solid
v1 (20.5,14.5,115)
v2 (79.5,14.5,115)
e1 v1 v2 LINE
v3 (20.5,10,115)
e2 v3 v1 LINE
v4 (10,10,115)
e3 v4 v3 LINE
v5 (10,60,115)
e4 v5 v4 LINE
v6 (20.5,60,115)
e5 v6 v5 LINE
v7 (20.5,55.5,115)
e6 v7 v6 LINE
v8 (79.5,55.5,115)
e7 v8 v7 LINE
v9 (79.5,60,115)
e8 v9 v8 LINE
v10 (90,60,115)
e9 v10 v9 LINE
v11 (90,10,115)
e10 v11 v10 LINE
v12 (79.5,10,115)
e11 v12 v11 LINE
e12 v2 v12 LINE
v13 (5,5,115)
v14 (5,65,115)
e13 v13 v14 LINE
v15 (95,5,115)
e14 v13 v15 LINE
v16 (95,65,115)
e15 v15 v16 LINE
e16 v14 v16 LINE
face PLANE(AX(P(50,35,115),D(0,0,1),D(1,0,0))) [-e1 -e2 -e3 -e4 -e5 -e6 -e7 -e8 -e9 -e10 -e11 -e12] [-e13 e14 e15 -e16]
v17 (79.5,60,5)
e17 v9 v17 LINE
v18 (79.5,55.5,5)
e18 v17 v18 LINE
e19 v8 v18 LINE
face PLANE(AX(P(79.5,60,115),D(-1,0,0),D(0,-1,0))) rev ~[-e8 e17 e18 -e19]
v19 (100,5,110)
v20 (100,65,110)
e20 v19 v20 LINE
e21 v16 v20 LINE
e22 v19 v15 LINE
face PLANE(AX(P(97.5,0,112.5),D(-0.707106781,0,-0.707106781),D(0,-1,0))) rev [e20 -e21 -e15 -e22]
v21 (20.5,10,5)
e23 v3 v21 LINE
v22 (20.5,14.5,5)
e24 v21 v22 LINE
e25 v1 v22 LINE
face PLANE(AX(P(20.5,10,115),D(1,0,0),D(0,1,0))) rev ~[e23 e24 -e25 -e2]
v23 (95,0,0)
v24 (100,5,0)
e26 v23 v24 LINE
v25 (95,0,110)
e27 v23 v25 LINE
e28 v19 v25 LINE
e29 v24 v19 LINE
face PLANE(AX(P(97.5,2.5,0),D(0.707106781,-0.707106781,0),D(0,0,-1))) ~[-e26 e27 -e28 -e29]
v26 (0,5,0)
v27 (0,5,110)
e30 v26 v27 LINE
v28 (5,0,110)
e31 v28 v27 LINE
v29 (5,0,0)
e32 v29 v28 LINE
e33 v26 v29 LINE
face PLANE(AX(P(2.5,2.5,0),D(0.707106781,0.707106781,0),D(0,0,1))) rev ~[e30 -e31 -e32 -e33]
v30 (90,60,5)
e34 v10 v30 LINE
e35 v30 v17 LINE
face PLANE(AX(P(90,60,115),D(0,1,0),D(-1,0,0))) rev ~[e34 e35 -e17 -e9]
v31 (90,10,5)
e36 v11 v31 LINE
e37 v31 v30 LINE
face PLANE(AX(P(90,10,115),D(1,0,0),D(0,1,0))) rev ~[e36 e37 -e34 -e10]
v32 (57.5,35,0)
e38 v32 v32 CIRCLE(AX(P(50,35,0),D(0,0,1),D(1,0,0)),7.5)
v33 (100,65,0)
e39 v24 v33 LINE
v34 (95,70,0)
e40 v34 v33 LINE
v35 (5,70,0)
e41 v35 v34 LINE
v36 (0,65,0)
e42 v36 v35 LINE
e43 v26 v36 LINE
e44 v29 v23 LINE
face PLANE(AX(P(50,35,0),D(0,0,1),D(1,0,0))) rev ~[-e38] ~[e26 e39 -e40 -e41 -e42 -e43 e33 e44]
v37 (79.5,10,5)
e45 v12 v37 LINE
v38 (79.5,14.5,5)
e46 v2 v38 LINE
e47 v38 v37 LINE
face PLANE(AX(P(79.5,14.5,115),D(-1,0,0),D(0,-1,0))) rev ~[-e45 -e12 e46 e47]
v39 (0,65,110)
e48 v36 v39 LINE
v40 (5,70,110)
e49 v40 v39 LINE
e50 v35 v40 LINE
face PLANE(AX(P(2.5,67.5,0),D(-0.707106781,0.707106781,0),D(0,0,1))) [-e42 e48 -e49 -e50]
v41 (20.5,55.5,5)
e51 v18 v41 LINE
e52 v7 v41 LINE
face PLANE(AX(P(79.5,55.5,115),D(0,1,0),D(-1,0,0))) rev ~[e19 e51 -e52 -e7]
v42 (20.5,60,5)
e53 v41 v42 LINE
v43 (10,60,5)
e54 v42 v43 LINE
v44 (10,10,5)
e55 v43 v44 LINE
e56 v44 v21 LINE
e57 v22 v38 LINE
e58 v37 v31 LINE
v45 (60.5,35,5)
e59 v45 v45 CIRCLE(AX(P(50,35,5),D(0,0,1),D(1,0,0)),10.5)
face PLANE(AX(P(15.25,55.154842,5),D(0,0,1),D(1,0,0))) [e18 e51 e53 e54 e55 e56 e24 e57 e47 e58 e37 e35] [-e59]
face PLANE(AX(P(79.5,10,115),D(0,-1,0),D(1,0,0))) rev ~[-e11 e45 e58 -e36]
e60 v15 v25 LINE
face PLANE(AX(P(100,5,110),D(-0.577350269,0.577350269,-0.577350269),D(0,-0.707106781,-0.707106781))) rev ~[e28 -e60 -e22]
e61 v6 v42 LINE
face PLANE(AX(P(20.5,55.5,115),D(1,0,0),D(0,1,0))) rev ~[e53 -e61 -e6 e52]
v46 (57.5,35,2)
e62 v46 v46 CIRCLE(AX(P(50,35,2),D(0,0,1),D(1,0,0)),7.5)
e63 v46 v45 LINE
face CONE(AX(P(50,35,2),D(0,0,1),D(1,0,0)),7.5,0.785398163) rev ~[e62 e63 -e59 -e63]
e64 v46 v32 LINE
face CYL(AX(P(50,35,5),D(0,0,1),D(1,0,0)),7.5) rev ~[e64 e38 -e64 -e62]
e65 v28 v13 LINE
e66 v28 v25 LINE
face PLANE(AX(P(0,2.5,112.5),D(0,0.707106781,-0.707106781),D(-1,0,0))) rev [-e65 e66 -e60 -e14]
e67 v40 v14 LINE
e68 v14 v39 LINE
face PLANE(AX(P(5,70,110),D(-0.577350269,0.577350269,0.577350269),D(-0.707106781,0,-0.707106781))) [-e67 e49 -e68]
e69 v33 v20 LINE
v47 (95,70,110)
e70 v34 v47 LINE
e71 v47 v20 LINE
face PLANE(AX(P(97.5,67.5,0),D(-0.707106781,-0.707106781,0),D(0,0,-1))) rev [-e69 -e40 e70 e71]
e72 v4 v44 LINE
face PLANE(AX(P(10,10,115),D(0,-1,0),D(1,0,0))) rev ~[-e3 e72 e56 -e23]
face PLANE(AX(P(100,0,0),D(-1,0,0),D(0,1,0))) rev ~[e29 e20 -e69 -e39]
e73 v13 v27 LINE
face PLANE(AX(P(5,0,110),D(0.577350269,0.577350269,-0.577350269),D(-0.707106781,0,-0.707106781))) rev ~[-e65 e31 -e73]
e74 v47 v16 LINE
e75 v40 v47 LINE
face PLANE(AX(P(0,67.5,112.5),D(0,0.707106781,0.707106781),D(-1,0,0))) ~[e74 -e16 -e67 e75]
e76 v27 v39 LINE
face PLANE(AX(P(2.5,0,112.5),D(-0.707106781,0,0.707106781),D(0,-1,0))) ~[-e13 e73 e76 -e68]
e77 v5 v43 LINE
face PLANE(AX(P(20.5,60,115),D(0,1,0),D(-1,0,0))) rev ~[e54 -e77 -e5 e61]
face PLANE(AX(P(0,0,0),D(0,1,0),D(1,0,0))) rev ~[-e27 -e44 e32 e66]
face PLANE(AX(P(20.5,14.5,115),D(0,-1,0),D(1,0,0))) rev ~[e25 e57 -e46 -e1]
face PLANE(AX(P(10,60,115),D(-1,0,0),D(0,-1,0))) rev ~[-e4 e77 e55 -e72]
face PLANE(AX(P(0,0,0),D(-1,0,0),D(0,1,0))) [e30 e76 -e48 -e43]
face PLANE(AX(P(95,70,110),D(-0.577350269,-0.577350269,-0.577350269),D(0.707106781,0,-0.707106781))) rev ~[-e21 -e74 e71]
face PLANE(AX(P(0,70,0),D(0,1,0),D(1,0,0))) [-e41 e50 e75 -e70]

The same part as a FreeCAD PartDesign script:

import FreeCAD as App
import Part
import Sketcher

V = App.Vector


def edges_at(feature, points):
    """Names of the edges that pass closest to the given points."""
    edges = feature.Shape.Edges
    near = lambda p: min(range(len(edges)), key=lambda i: edges[i].distToShape(Part.Vertex(*p))[0])
    return sorted({f"Edge{near(p) + 1}" for p in points})


def add_polygon(sketch, points):
    """Adds a closed chain of lines whose ends are joined by coincident constraints."""
    first, n = sketch.GeometryCount, len(points)
    for a, b in zip(points, points[1:] + points[:1]):
        sketch.addGeometry(Part.LineSegment(App.Vector(*a, 0), App.Vector(*b, 0)), False)
    for i in range(n):
        sketch.addConstraint(Sketcher.Constraint("Coincident", first + i, 2, first + (i + 1) % n, 1))

doc = App.newDocument("Part")
body = doc.addObject("PartDesign::Body", "Body")

sketch1 = body.newObject("Sketcher::SketchObject", "Sketch")
sketch1.AttachmentSupport = (doc.getObject("XY_Plane"), [""])
sketch1.MapMode = "FlatFace"
add_polygon(sketch1, [(0, 70), (0, 0), (100, 0), (100, 70)])
sketch1.addConstraint([
    Sketcher.Constraint("Vertical", 0),
    Sketcher.Constraint("Horizontal", 1),
    Sketcher.Constraint("Vertical", 2),
    Sketcher.Constraint("Horizontal", 3),
    Sketcher.Constraint("Coincident", 0, 2, -1, 1),
    Sketcher.Constraint("DistanceX", 1, 1, 1, 2, 100.0),
    Sketcher.Constraint("DistanceY", 0, 2, 0, 1, 70.0),
])
pad1 = body.newObject("PartDesign::Pad", "Pad")
pad1.Profile = sketch1
pad1.Length = 115

sketch2 = body.newObject("Sketcher::SketchObject", "Sketch001")
sketch2.AttachmentSupport = (doc.getObject("XY_Plane"), [""])
sketch2.MapMode = "FlatFace"
sketch2.AttachmentOffset = App.Placement(V(0, 0, 115), App.Rotation())
add_polygon(sketch2, [(20.5, 60), (10, 60), (10, 10), (20.5, 10), (20.5, 14.5), (79.5, 14.5), (79.5, 10), (90, 10), (90, 60), (79.5, 60), (79.5, 55.5), (20.5, 55.5)])
sketch2.addConstraint([
    Sketcher.Constraint("Horizontal", 0),
    Sketcher.Constraint("Vertical", 1),
    Sketcher.Constraint("Horizontal", 2),
    Sketcher.Constraint("Vertical", 3),
    Sketcher.Constraint("Horizontal", 4),
    Sketcher.Constraint("Vertical", 5),
    Sketcher.Constraint("Horizontal", 6),
    Sketcher.Constraint("Vertical", 7),
    Sketcher.Constraint("Horizontal", 8),
    Sketcher.Constraint("Vertical", 9),
    Sketcher.Constraint("Horizontal", 10),
    Sketcher.Constraint("Vertical", 11),
    Sketcher.Constraint("Horizontal", 2, 2, 5, 2),
    Sketcher.Constraint("Horizontal", 0, 2, 7, 2),
    Sketcher.Constraint("Vertical", 5, 2, 8, 2),
    Sketcher.Constraint("Vertical", 3, 2, 10, 2),
    Sketcher.Constraint("Equal", 2, 6),
    Sketcher.Constraint("Equal", 5, 9),
    Sketcher.Constraint("DistanceX", 4, 1, 4, 2, 59.0),
    Sketcher.Constraint("DistanceY", 1, 2, 1, 1, 50.0),
    Sketcher.Constraint("DistanceX", 0, 2, 0, 1, 10.5),
    Sketcher.Constraint("DistanceY", 3, 1, 3, 2, 4.5),
    Sketcher.Constraint("DistanceX", -1, 1, 0, 2, 10.0),
    Sketcher.Constraint("DistanceY", -1, 1, 0, 2, 60.0),
])
pocket1 = body.newObject("PartDesign::Pocket", "Pocket")
pocket1.Profile = sketch2
pocket1.Length = 110

sketch3 = body.newObject("Sketcher::SketchObject", "Sketch002")
sketch3.AttachmentSupport = (doc.getObject("XY_Plane"), [""])
sketch3.MapMode = "FlatFace"
sketch3.AttachmentOffset = App.Placement(V(0, 0, 5), App.Rotation())
sketch3.addGeometry(Part.Circle(V(50, 35, 0), V(0, 0, 1), 8), False)
sketch3.addConstraint([
    Sketcher.Constraint("Diameter", 0, 15.0),
    Sketcher.Constraint("DistanceX", -1, 1, 0, 3, 50.0),
    Sketcher.Constraint("DistanceY", -1, 1, 0, 3, 35.0),
])
pocket2 = body.newObject("PartDesign::Pocket", "Pocket001")
pocket2.Profile = sketch3
pocket2.Length = 25
doc.recompute()

chamfer = body.newObject("PartDesign::Chamfer", "Chamfer")
chamfer.Base = (pocket2, edges_at(pocket2, [(42.5, 35, 5)]))
chamfer.Size = 3
doc.recompute()

chamfer2 = body.newObject("PartDesign::Chamfer", "Chamfer001")
chamfer2.Base = (chamfer, edges_at(chamfer, [
    (0, 35, 115),
    (50, 0, 115),
    (100, 35, 115),
    (50, 70, 115),
    (100, 0, 57.5),
    (100, 70, 57.5),
    (0, 70, 57.5),
    (0, 0, 57.5),
]))
chamfer2.Size = 5

doc.recompute()
